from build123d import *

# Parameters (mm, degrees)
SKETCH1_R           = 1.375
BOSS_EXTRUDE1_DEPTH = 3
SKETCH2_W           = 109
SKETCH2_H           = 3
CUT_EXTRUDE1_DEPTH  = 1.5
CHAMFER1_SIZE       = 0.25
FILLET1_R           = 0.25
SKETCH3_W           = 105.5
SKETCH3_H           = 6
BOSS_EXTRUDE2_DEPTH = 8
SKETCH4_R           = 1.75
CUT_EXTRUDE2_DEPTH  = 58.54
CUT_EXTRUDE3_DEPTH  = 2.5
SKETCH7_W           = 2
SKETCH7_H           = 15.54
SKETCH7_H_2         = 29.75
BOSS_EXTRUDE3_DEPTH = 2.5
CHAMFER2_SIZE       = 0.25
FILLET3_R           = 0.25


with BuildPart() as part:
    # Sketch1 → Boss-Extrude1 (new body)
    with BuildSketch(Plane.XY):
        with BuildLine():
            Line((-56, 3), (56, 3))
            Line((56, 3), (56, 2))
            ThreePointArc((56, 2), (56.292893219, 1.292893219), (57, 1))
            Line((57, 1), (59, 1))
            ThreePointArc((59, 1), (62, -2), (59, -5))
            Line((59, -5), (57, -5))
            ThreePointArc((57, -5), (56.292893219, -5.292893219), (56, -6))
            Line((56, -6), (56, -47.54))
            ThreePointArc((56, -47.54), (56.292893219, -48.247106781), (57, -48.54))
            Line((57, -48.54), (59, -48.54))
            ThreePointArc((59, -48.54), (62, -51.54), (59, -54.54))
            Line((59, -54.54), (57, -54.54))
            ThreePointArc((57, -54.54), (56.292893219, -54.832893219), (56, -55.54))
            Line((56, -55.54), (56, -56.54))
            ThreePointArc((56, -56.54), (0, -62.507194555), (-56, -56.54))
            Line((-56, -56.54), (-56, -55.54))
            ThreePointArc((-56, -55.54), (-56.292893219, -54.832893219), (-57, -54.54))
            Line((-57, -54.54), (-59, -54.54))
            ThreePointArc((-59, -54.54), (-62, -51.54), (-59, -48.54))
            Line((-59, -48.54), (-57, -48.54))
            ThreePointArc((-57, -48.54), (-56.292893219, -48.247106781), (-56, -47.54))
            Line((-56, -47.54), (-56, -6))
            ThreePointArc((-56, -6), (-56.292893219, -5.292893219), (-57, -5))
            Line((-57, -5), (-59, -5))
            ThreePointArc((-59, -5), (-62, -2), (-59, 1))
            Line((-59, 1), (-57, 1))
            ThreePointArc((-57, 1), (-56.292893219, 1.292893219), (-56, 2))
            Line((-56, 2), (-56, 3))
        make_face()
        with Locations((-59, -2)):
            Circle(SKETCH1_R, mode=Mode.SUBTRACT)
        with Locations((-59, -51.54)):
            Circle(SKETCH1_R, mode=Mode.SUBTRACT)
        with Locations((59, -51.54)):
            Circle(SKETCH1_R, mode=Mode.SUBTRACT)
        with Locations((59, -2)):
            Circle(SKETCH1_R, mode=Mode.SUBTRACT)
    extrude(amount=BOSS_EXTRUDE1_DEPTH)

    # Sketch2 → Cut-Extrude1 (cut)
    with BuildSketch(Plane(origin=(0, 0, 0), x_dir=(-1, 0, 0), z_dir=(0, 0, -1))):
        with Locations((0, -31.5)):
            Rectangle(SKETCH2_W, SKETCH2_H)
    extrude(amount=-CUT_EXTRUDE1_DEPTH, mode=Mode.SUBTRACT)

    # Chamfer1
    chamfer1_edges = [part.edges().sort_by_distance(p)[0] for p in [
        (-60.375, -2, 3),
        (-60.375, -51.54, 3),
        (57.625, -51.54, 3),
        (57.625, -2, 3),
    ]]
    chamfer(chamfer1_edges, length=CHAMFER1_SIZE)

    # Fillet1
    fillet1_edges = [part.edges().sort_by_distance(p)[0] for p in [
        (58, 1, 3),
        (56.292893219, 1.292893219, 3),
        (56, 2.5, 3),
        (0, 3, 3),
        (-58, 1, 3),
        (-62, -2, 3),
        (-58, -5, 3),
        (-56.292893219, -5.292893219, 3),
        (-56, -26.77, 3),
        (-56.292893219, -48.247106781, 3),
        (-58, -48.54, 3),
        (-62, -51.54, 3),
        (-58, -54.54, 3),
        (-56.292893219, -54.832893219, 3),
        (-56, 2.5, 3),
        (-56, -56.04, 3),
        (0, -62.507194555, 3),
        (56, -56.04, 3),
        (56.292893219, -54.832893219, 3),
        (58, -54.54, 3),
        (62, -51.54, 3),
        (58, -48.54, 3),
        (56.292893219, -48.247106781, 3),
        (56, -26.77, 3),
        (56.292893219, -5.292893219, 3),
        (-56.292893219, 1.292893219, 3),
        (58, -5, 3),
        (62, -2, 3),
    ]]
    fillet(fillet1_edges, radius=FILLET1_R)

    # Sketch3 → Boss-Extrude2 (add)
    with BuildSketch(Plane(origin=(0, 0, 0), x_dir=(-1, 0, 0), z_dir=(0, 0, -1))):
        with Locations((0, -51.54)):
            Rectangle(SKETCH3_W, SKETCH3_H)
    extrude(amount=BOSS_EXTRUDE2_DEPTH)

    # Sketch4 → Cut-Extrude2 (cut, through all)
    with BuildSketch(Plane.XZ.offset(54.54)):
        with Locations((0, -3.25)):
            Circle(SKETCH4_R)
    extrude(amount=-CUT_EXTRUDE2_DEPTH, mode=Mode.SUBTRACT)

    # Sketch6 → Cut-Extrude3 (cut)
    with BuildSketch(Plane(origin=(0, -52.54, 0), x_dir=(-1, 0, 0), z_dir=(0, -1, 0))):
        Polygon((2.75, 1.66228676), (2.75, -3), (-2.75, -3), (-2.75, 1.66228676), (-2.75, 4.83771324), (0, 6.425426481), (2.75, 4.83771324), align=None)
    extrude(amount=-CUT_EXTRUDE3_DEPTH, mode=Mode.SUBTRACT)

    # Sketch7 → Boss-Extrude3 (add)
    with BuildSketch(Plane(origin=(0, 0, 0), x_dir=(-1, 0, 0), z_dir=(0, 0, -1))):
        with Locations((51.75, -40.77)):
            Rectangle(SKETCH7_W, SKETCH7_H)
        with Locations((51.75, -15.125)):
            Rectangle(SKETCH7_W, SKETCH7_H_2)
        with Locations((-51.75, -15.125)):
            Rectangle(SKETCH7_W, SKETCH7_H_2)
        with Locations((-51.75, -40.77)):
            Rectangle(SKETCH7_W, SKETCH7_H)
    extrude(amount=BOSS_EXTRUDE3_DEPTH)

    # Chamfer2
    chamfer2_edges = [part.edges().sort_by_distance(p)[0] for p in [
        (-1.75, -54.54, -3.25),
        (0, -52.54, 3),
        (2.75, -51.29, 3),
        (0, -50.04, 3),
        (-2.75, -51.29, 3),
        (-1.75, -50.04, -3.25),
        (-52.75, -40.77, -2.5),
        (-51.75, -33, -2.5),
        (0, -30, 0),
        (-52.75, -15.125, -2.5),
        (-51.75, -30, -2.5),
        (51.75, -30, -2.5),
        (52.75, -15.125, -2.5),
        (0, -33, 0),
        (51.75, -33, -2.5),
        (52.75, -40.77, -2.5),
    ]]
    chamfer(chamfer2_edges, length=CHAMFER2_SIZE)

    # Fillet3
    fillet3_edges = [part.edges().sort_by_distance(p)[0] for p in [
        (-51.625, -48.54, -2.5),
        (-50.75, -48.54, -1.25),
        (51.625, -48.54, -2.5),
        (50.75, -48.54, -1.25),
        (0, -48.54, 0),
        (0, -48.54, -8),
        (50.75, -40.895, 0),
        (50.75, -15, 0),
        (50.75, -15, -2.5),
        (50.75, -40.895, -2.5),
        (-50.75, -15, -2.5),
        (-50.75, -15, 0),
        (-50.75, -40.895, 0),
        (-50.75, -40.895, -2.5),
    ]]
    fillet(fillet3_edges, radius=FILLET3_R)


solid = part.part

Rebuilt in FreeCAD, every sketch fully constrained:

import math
import FreeCAD as App
import Part
import Sketcher
Q = App.Units.Quantity


def edges_at(feature, points):
    """Names of the edges that pass closest to the given points."""
    edges = feature.Shape.Edges
    near = lambda p: min(range(len(edges)), key=lambda i: edges[i].distToShape(Part.Vertex(*p))[0])
    return sorted({f"Edge{near(p) + 1}" for p in points})


def add_polygon(sketch, points):
    """Adds a closed chain of lines whose ends are joined by coincident constraints."""
    first, n = sketch.GeometryCount, len(points)
    for a, b in zip(points, points[1:] + points[:1]):
        sketch.addGeometry(Part.LineSegment(App.Vector(*a, 0), App.Vector(*b, 0)), False)
    for i in range(n):
        sketch.addConstraint(Sketcher.Constraint("Coincident", first + i, 2, first + (i + 1) % n, 1))

doc = App.newDocument("Part")
body = doc.addObject("PartDesign::Body", "Body")

sketch1 = body.newObject("Sketcher::SketchObject", "Sketch")
sketch1.AttachmentSupport = (doc.getObject("XY_Plane"), [""])
sketch1.MapMode = "FlatFace"
sketch1.addGeometry([
    Part.LineSegment(App.Vector(56, 3, 0), App.Vector(-56, 3, 0)),
    Part.LineSegment(App.Vector(-56, 3, 0), App.Vector(-56, 2, 0)),
    Part.ArcOfCircle(Part.Circle(App.Vector(-57, 2, 0), App.Vector(0, 0, 1), 1), math.radians(-90), math.radians(0)),
    Part.LineSegment(App.Vector(-57, 1, 0), App.Vector(-59, 1, 0)),
    Part.ArcOfCircle(Part.Circle(App.Vector(-59, -2, 0), App.Vector(0, 0, 1), 3), math.radians(90), math.radians(270)),
    Part.LineSegment(App.Vector(-59, -5, 0), App.Vector(-57, -5, 0)),
    Part.ArcOfCircle(Part.Circle(App.Vector(-57, -6, 0), App.Vector(0, 0, 1), 1), math.radians(0), math.radians(90)),
    Part.LineSegment(App.Vector(-56, -6, 0), App.Vector(-56, -47.54, 0)),
    Part.ArcOfCircle(Part.Circle(App.Vector(-57, -47.54, 0), App.Vector(0, 0, 1), 1), math.radians(-90), math.radians(0)),
    Part.LineSegment(App.Vector(-57, -48.54, 0), App.Vector(-59, -48.54, 0)),
    Part.ArcOfCircle(Part.Circle(App.Vector(-59, -51.54, 0), App.Vector(0, 0, 1), 3), math.radians(90), math.radians(270)),
    Part.LineSegment(App.Vector(-59, -54.54, 0), App.Vector(-57, -54.54, 0)),
    Part.ArcOfCircle(Part.Circle(App.Vector(-57, -55.54, 0), App.Vector(0, 0, 1), 1), math.radians(0), math.radians(90)),
    Part.LineSegment(App.Vector(-56, -55.54, 0), App.Vector(-56, -56.54, 0)),
    Part.ArcOfCircle(Part.Circle(App.Vector(0, 203.246451, 0), App.Vector(0, 0, 1), 265.753645), math.radians(-102.164636), math.radians(-77.835364)),
    Part.LineSegment(App.Vector(56, -56.54, 0), App.Vector(56, -55.54, 0)),
    Part.ArcOfCircle(Part.Circle(App.Vector(57, -55.54, 0), App.Vector(0, 0, 1), 1), math.radians(90), math.radians(180)),
    Part.LineSegment(App.Vector(57, -54.54, 0), App.Vector(59, -54.54, 0)),
    Part.ArcOfCircle(Part.Circle(App.Vector(59, -51.54, 0), App.Vector(0, 0, 1), 3), math.radians(-90), math.radians(90)),
    Part.LineSegment(App.Vector(59, -48.54, 0), App.Vector(57, -48.54, 0)),
    Part.ArcOfCircle(Part.Circle(App.Vector(57, -47.54, 0), App.Vector(0, 0, 1), 1), math.radians(-180), math.radians(-90)),
    Part.LineSegment(App.Vector(56, -47.54, 0), App.Vector(56, -6, 0)),
    Part.ArcOfCircle(Part.Circle(App.Vector(57, -6, 0), App.Vector(0, 0, 1), 1), math.radians(90), math.radians(180)),
    Part.LineSegment(App.Vector(57, -5, 0), App.Vector(59, -5, 0)),
    Part.ArcOfCircle(Part.Circle(App.Vector(59, -2, 0), App.Vector(0, 0, 1), 3), math.radians(-90), math.radians(90)),
    Part.LineSegment(App.Vector(59, 1, 0), App.Vector(57, 1, 0)),
    Part.ArcOfCircle(Part.Circle(App.Vector(57, 2, 0), App.Vector(0, 0, 1), 1), math.radians(-180), math.radians(-90)),
    Part.LineSegment(App.Vector(56, 2, 0), App.Vector(56, 3, 0)),
    Part.Circle(App.Vector(59, -51.54, 0), App.Vector(0, 0, 1), 1.375),
    Part.Circle(App.Vector(-59, -51.54, 0), App.Vector(0, 0, 1), 1.375),
    Part.Circle(App.Vector(59, -2, 0), App.Vector(0, 0, 1), 1.375),
    Part.Circle(App.Vector(-59, -2, 0), App.Vector(0, 0, 1), 1.375),
], False)
sketch1.addConstraint([
    Sketcher.Constraint("Coincident", 0, 2, 1, 1),
    Sketcher.Constraint("Tangent", 1, 2, 2, 2),
    Sketcher.Constraint("Tangent", 2, 1, 3, 1),
    Sketcher.Constraint("Tangent", 3, 2, 4, 1),
    Sketcher.Constraint("Tangent", 4, 2, 5, 1),
    Sketcher.Constraint("Tangent", 5, 2, 6, 2),
    Sketcher.Constraint("Tangent", 6, 1, 7, 1),
    Sketcher.Constraint("Tangent", 7, 2, 8, 2),
    Sketcher.Constraint("Tangent", 8, 1, 9, 1),
    Sketcher.Constraint("Tangent", 9, 2, 10, 1),
    Sketcher.Constraint("Tangent", 10, 2, 11, 1),
    Sketcher.Constraint("Tangent", 11, 2, 12, 2),
    Sketcher.Constraint("Tangent", 12, 1, 13, 1),
    Sketcher.Constraint("Coincident", 13, 2, 14, 1),
    Sketcher.Constraint("Coincident", 14, 2, 15, 1),
    Sketcher.Constraint("Tangent", 15, 2, 16, 2),
    Sketcher.Constraint("Tangent", 16, 1, 17, 1),
    Sketcher.Constraint("Tangent", 17, 2, 18, 1),
    Sketcher.Constraint("Tangent", 18, 2, 19, 1),
    Sketcher.Constraint("Tangent", 19, 2, 20, 2),
    Sketcher.Constraint("Tangent", 20, 1, 21, 1),
    Sketcher.Constraint("Tangent", 21, 2, 22, 2),
    Sketcher.Constraint("Tangent", 22, 1, 23, 1),
    Sketcher.Constraint("Tangent", 23, 2, 24, 1),
    Sketcher.Constraint("Tangent", 24, 2, 25, 1),
    Sketcher.Constraint("Tangent", 25, 2, 26, 2),
    Sketcher.Constraint("Tangent", 26, 1, 27, 1),
    Sketcher.Constraint("Coincident", 27, 2, 0, 1),
    Sketcher.Constraint("Horizontal", 0),
    Sketcher.Constraint("Vertical", 1),
    Sketcher.Constraint("Horizontal", 3),
    Sketcher.Constraint("Horizontal", 5),
    Sketcher.Constraint("Vertical", 7),
    Sketcher.Constraint("Horizontal", 9),
    Sketcher.Constraint("Horizontal", 11),
    Sketcher.Constraint("Vertical", 13),
    Sketcher.Constraint("Vertical", 15),
    Sketcher.Constraint("Horizontal", 17),
    Sketcher.Constraint("Horizontal", 19),
    Sketcher.Constraint("Vertical", 21),
    Sketcher.Constraint("Horizontal", 23),
    Sketcher.Constraint("Horizontal", 25),
    Sketcher.Constraint("Vertical", 27),
    Sketcher.Constraint("Coincident", 28, 3, 18, 3),
    Sketcher.Constraint("Coincident", 29, 3, 10, 3),
    Sketcher.Constraint("Coincident", 30, 3, 24, 3),
    Sketcher.Constraint("Coincident", 31, 3, 4, 3),
    Sketcher.Constraint("Equal", 2, 6),
    Sketcher.Constraint("Equal", 6, 8),
    Sketcher.Constraint("Equal", 4, 10),
    Sketcher.Constraint("Equal", 8, 12),
    Sketcher.Constraint("Equal", 12, 16),
    Sketcher.Constraint("Equal", 10, 18),
    Sketcher.Constraint("Equal", 16, 20),
    Sketcher.Constraint("Equal", 20, 22),
    Sketcher.Constraint("Equal", 18, 24),
    Sketcher.Constraint("Equal", 22, 26),
    Sketcher.Constraint("Equal", 28, 29),
    Sketcher.Constraint("Equal", 29, 30),
    Sketcher.Constraint("Equal", 30, 31),
    Sketcher.Constraint("Symmetric", 12, 3, 16, 3, -2),
    Sketcher.Constraint("Symmetric", 6, 3, 22, 3, -2),
    Sketcher.Constraint("PointOnObject", 14, 3, -2),
    Sketcher.Constraint("Vertical", 2, 3, 6, 3),
    Sketcher.Constraint("Vertical", 4, 3, 10, 3),
    Sketcher.Constraint("Vertical", 8, 3, 12, 3),
    Sketcher.Constraint("Vertical", 18, 3, 24, 3),
    Sketcher.Constraint("Vertical", 22, 3, 26, 3),
    Sketcher.Constraint("Equal", 11, 17),
    Sketcher.Constraint("Equal", 1, 13),
    Sketcher.Constraint("Radius", 2, 1.0),
    Sketcher.Constraint("Radius", 4, 3.0),
    Sketcher.Constraint("Diameter", 28, 2.75),
    Sketcher.Constraint("DistanceX", 0, 2, 0, 1, 112.0),
    Sketcher.Constraint("DistanceX", 3, 2, 3, 1, 2.0),
    Sketcher.Constraint("DistanceY", 1, 2, 1, 1, 1.0),
    Sketcher.Constraint("DistanceY", -1, 1, 2, 3, 2.0),
    Sketcher.Constraint("DistanceY", 7, 2, 7, 1, 41.54),
    Sketcher.Constraint("Radius", 14, 265.753645),
])
pad1 = body.newObject("PartDesign::Pad", "Pad")
pad1.Profile = sketch1
pad1.Length = 3

sketch2 = body.newObject("Sketcher::SketchObject", "Sketch001")
sketch2.AttachmentSupport = (doc.getObject("XY_Plane"), [""])
sketch2.MapMode = "FlatFace"
add_polygon(sketch2, [(54.5, -30), (54.5, -33), (-54.5, -33), (-54.5, -30)])
sketch2.addConstraint([
    Sketcher.Constraint("Vertical", 0),
    Sketcher.Constraint("Horizontal", 1),
    Sketcher.Constraint("Vertical", 2),
    Sketcher.Constraint("Horizontal", 3),
    Sketcher.Constraint("DistanceX", 1, 2, 1, 1, 109.0),
    Sketcher.Constraint("DistanceY", 0, 2, 0, 1, 3.0),
    Sketcher.Constraint("DistanceY", 0, 2, -1, 1, 33.0),
    Sketcher.Constraint("DistanceX", -1, 1, 0, 2, 54.5),
])
pocket1 = body.newObject("PartDesign::Pocket", "Pocket")
pocket1.Profile = sketch2
pocket1.Length = 1.5
pocket1.Reversed = True
doc.recompute()

chamfer = body.newObject("PartDesign::Chamfer", "Chamfer")
chamfer.Base = (pocket1, edges_at(pocket1, [
    (-60.375, -2, 3),
    (-60.375, -51.54, 3),
    (57.625, -51.54, 3),
    (57.625, -2, 3),
]))
chamfer.Size = 0.25
doc.recompute()

fillet = body.newObject("PartDesign::Fillet", "Fillet")
fillet.Base = (chamfer, edges_at(chamfer, [
    (58, 1, 3),
    (56.293, 1.293, 3),
    (56, 2.5, 3),
    (0, 3, 3),
    (-58, 1, 3),
    (-62, -2, 3),
    (-58, -5, 3),
    (-56.293, -5.293, 3),
    (-56, -26.77, 3),
    (-56.293, -48.247, 3),
    (-58, -48.54, 3),
    (-62, -51.54, 3),
    (-58, -54.54, 3),
    (-56.293, -54.833, 3),
    (-56, 2.5, 3),
    (-56, -56.04, 3),
    (0, -62.507, 3),
    (56, -56.04, 3),
    (56.293, -54.833, 3),
    (58, -54.54, 3),
    (62, -51.54, 3),
    (58, -48.54, 3),
    (56.293, -48.247, 3),
    (56, -26.77, 3),
    (56.293, -5.293, 3),
    (-56.293, 1.293, 3),
    (58, -5, 3),
    (62, -2, 3),
]))
fillet.Radius = 0.25

sketch3 = body.newObject("Sketcher::SketchObject", "Sketch002")
sketch3.AttachmentSupport = (doc.getObject("XY_Plane"), [""])
sketch3.MapMode = "FlatFace"
add_polygon(sketch3, [(52.75, -48.54), (52.75, -54.54), (-52.75, -54.54), (-52.75, -48.54)])
sketch3.addConstraint([
    Sketcher.Constraint("Vertical", 0),
    Sketcher.Constraint("Horizontal", 1),
    Sketcher.Constraint("Vertical", 2),
    Sketcher.Constraint("Horizontal", 3),
    Sketcher.Constraint("DistanceY", 0, 2, 0, 1, 6.0),
    Sketcher.Constraint("DistanceX", 1, 2, 1, 1, 105.5),
    Sketcher.Constraint("DistanceX", -1, 1, 0, 2, 52.75),
    Sketcher.Constraint("DistanceY", 0, 2, -1, 1, 54.54),
])
pad2 = body.newObject("PartDesign::Pad", "Pad001")
pad2.Profile = sketch3
pad2.Length = 8
pad2.Reversed = True

sketch4 = body.newObject("Sketcher::SketchObject", "Sketch003")
sketch4.AttachmentSupport = (doc.getObject("XZ_Plane"), [""])
sketch4.MapMode = "FlatFace"
sketch4.AttachmentOffset = App.Placement(App.Vector(0, 0, 54.54), App.Rotation())
sketch4.addGeometry(Part.Circle(App.Vector(0, -3.25, 0), App.Vector(0, 0, 1), 1.75), False)
sketch4.addConstraint([
    Sketcher.Constraint("PointOnObject", 0, 3, -2),
    Sketcher.Constraint("Diameter", 0, 3.5),
    Sketcher.Constraint("DistanceY", 0, 3, -1, 1, 3.25),
])
pocket2 = body.newObject("PartDesign::Pocket", "Pocket001")
pocket2.Profile = sketch4
pocket2.Type = "ThroughAll"

sketch5 = body.newObject("Sketcher::SketchObject", "Sketch004")
sketch5.AttachmentSupport = (doc.getObject("XZ_Plane"), [""])
sketch5.MapMode = "FlatFace"
sketch5.AttachmentOffset = App.Placement(App.Vector(0, 0, 52.54), App.Rotation())
add_polygon(sketch5, [(-2.75, 3), (-2.75, -4.837713), (0, -6.425426), (2.75, -4.837713), (2.75, 3)])
sketch5.addConstraint([
    Sketcher.Constraint("Vertical", 0),
    Sketcher.Constraint("Vertical", 3),
    Sketcher.Constraint("Horizontal", 4),
    Sketcher.Constraint("Symmetric", 0, 2, 2, 2, -2),
    Sketcher.Constraint("PointOnObject", 1, 2, -2),
    Sketcher.Constraint("Angle", 1, Q("-30 deg")),
    Sketcher.Constraint("DistanceX", 4, 2, 4, 1, 5.5),
    Sketcher.Constraint("DistanceY", -1, 1, 3, 2, 3.0),
    Sketcher.Constraint("DistanceY", 0, 2, 0, 1, 7.837713),
])
pocket3 = body.newObject("PartDesign::Pocket", "Pocket002")
pocket3.Profile = sketch5
pocket3.Length = 2.5

sketch6 = body.newObject("Sketcher::SketchObject", "Sketch005")
sketch6.AttachmentSupport = (doc.getObject("XY_Plane"), [""])
sketch6.MapMode = "FlatFace"
add_polygon(sketch6, [(-50.75, -33), (-50.75, -48.54), (-52.75, -48.54), (-52.75, -33)])
add_polygon(sketch6, [(-50.75, -0.25), (-50.75, -30), (-52.75, -30), (-52.75, -0.25)])
add_polygon(sketch6, [(52.75, -0.25), (52.75, -30), (50.75, -30), (50.75, -0.25)])
add_polygon(sketch6, [(52.75, -33), (52.75, -48.54), (50.75, -48.54), (50.75, -33)])
sketch6.addConstraint([
    Sketcher.Constraint("Vertical", 0),
    Sketcher.Constraint("Horizontal", 1),
    Sketcher.Constraint("Vertical", 2),
    Sketcher.Constraint("Horizontal", 3),
    Sketcher.Constraint("Vertical", 4),
    Sketcher.Constraint("Horizontal", 5),
    Sketcher.Constraint("Vertical", 6),
    Sketcher.Constraint("Horizontal", 7),
    Sketcher.Constraint("Vertical", 8),
    Sketcher.Constraint("Horizontal", 9),
    Sketcher.Constraint("Vertical", 10),
    Sketcher.Constraint("Horizontal", 11),
    Sketcher.Constraint("Vertical", 12),
    Sketcher.Constraint("Horizontal", 13),
    Sketcher.Constraint("Vertical", 14),
    Sketcher.Constraint("Horizontal", 15),
    Sketcher.Constraint("Symmetric", 5, 2, 8, 2, -2),
    Sketcher.Constraint("Symmetric", 7, 2, 10, 2, -2),
    Sketcher.Constraint("Symmetric", 1, 2, 12, 2, -2),
    Sketcher.Constraint("Symmetric", 3, 2, 14, 2, -2),
    Sketcher.Constraint("Vertical", 3, 2, 4, 2),
    Sketcher.Constraint("Vertical", 2, 2, 5, 2),
    Sketcher.Constraint("DistanceX", 1, 2, 1, 1, 2.0),
    Sketcher.Constraint("DistanceY", 2, 2, -1, 1, 33.0),
    Sketcher.Constraint("DistanceY", 4, 2, -1, 1, 30.0),
    Sketcher.Constraint("DistanceY", 0, 2, 0, 1, 15.54),
    Sketcher.Constraint("DistanceY", 4, 2, 4, 1, 29.75),
    Sketcher.Constraint("DistanceX", 4, 2, 8, 2, 103.5),
])
pad3 = body.newObject("PartDesign::Pad", "Pad002")
pad3.Profile = sketch6
pad3.Length = 2.5
pad3.Reversed = True
doc.recompute()

chamfer2 = body.newObject("PartDesign::Chamfer", "Chamfer001")
chamfer2.Base = (pad3, edges_at(pad3, [
    (-1.75, -54.54, -3.25),
    (0, -52.54, 3),
    (2.75, -51.29, 3),
    (0, -50.04, 3),
    (-2.75, -51.29, 3),
    (-1.75, -50.04, -3.25),
    (-52.75, -40.77, -2.5),
    (-51.75, -33, -2.5),
    (0, -30, 0),
    (-52.75, -15.125, -2.5),
    (-51.75, -30, -2.5),
    (51.75, -30, -2.5),
    (52.75, -15.125, -2.5),
    (0, -33, 0),
    (51.75, -33, -2.5),
    (52.75, -40.77, -2.5),
]))
chamfer2.Size = 0.25
doc.recompute()

fillet2 = body.newObject("PartDesign::Fillet", "Fillet001")
fillet2.Base = (chamfer2, edges_at(chamfer2, [
    (-51.625, -48.54, -2.5),
    (-50.75, -48.54, -1.25),
    (51.625, -48.54, -2.5),
    (50.75, -48.54, -1.25),
    (0, -48.54, 0),
    (0, -48.54, -8),
    (50.75, -40.895, 0),
    (50.75, -15, 0),
    (50.75, -15, -2.5),
    (50.75, -40.895, -2.5),
    (-50.75, -15, -2.5),
    (-50.75, -15, 0),
    (-50.75, -40.895, 0),
    (-50.75, -40.895, -2.5),
]))
fillet2.Radius = 0.25

doc.recompute()
